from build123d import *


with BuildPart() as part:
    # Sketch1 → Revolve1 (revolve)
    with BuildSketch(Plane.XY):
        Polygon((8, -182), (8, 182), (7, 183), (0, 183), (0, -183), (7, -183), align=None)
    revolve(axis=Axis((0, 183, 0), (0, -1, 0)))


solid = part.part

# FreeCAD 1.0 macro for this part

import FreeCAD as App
import Part
import Sketcher

V = App.Vector
Q = App.Units.Quantity


def add_polygon(sketch, points):
    """Adds a closed chain of lines whose ends are joined by coincident constraints."""
    first, n = sketch.GeometryCount, len(points)
    for a, b in zip(points, points[1:] + points[:1]):
        sketch.addGeometry(Part.LineSegment(App.Vector(*a, 0), App.Vector(*b, 0)), False)
    for i in range(n):
        sketch.addConstraint(Sketcher.Constraint("Coincident", first + i, 2, first + (i + 1) % n, 1))

doc = App.newDocument("Part")
body = doc.addObject("PartDesign::Body", "Body")

# Sketch on XY plane
sketch1 = doc.addObject("Sketcher::SketchObject", "Sketch")
body.addObject(sketch1)
sketch1.AttachmentSupport = (doc.XY_Plane, [""])
sketch1.MapMode = "FlatFace"
add_polygon(sketch1, [(8, -182), (8, 182), (7, 183), (0, 183), (0, -183), (7, -183)])  # lines 0-5
sketch1.addConstraint([
    Sketcher.Constraint("Vertical", 0),
    Sketcher.Constraint("Horizontal", 2),
    Sketcher.Constraint("Vertical", 3),
    Sketcher.Constraint("Horizontal", 4),
    Sketcher.Constraint("Symmetric", 2, 2, 3, 2, -1, 1),
    Sketcher.Constraint("Perpendicular", 1, 5),
    Sketcher.Constraint("Vertical", 1, 2, 4, 2),
    Sketcher.Constraint("Equal", 1, 5),
    Sketcher.Constraint("DistanceX", 2, 2, 2, 1, Q("7 mm")),
    Sketcher.Constraint("DistanceY", 0, 1, 0, 2, Q("364 mm")),
    Sketcher.Constraint("DistanceY", 3, 2, 3, 1, Q("366 mm")),
])
revolution = doc.addObject("PartDesign::Revolution", "Revolution")
body.addObject(revolution)
revolution.Profile = sketch1
revolution.ReferenceAxis = (sketch1, ["V_Axis"])
revolution.Angle = 360

doc.recompute()
